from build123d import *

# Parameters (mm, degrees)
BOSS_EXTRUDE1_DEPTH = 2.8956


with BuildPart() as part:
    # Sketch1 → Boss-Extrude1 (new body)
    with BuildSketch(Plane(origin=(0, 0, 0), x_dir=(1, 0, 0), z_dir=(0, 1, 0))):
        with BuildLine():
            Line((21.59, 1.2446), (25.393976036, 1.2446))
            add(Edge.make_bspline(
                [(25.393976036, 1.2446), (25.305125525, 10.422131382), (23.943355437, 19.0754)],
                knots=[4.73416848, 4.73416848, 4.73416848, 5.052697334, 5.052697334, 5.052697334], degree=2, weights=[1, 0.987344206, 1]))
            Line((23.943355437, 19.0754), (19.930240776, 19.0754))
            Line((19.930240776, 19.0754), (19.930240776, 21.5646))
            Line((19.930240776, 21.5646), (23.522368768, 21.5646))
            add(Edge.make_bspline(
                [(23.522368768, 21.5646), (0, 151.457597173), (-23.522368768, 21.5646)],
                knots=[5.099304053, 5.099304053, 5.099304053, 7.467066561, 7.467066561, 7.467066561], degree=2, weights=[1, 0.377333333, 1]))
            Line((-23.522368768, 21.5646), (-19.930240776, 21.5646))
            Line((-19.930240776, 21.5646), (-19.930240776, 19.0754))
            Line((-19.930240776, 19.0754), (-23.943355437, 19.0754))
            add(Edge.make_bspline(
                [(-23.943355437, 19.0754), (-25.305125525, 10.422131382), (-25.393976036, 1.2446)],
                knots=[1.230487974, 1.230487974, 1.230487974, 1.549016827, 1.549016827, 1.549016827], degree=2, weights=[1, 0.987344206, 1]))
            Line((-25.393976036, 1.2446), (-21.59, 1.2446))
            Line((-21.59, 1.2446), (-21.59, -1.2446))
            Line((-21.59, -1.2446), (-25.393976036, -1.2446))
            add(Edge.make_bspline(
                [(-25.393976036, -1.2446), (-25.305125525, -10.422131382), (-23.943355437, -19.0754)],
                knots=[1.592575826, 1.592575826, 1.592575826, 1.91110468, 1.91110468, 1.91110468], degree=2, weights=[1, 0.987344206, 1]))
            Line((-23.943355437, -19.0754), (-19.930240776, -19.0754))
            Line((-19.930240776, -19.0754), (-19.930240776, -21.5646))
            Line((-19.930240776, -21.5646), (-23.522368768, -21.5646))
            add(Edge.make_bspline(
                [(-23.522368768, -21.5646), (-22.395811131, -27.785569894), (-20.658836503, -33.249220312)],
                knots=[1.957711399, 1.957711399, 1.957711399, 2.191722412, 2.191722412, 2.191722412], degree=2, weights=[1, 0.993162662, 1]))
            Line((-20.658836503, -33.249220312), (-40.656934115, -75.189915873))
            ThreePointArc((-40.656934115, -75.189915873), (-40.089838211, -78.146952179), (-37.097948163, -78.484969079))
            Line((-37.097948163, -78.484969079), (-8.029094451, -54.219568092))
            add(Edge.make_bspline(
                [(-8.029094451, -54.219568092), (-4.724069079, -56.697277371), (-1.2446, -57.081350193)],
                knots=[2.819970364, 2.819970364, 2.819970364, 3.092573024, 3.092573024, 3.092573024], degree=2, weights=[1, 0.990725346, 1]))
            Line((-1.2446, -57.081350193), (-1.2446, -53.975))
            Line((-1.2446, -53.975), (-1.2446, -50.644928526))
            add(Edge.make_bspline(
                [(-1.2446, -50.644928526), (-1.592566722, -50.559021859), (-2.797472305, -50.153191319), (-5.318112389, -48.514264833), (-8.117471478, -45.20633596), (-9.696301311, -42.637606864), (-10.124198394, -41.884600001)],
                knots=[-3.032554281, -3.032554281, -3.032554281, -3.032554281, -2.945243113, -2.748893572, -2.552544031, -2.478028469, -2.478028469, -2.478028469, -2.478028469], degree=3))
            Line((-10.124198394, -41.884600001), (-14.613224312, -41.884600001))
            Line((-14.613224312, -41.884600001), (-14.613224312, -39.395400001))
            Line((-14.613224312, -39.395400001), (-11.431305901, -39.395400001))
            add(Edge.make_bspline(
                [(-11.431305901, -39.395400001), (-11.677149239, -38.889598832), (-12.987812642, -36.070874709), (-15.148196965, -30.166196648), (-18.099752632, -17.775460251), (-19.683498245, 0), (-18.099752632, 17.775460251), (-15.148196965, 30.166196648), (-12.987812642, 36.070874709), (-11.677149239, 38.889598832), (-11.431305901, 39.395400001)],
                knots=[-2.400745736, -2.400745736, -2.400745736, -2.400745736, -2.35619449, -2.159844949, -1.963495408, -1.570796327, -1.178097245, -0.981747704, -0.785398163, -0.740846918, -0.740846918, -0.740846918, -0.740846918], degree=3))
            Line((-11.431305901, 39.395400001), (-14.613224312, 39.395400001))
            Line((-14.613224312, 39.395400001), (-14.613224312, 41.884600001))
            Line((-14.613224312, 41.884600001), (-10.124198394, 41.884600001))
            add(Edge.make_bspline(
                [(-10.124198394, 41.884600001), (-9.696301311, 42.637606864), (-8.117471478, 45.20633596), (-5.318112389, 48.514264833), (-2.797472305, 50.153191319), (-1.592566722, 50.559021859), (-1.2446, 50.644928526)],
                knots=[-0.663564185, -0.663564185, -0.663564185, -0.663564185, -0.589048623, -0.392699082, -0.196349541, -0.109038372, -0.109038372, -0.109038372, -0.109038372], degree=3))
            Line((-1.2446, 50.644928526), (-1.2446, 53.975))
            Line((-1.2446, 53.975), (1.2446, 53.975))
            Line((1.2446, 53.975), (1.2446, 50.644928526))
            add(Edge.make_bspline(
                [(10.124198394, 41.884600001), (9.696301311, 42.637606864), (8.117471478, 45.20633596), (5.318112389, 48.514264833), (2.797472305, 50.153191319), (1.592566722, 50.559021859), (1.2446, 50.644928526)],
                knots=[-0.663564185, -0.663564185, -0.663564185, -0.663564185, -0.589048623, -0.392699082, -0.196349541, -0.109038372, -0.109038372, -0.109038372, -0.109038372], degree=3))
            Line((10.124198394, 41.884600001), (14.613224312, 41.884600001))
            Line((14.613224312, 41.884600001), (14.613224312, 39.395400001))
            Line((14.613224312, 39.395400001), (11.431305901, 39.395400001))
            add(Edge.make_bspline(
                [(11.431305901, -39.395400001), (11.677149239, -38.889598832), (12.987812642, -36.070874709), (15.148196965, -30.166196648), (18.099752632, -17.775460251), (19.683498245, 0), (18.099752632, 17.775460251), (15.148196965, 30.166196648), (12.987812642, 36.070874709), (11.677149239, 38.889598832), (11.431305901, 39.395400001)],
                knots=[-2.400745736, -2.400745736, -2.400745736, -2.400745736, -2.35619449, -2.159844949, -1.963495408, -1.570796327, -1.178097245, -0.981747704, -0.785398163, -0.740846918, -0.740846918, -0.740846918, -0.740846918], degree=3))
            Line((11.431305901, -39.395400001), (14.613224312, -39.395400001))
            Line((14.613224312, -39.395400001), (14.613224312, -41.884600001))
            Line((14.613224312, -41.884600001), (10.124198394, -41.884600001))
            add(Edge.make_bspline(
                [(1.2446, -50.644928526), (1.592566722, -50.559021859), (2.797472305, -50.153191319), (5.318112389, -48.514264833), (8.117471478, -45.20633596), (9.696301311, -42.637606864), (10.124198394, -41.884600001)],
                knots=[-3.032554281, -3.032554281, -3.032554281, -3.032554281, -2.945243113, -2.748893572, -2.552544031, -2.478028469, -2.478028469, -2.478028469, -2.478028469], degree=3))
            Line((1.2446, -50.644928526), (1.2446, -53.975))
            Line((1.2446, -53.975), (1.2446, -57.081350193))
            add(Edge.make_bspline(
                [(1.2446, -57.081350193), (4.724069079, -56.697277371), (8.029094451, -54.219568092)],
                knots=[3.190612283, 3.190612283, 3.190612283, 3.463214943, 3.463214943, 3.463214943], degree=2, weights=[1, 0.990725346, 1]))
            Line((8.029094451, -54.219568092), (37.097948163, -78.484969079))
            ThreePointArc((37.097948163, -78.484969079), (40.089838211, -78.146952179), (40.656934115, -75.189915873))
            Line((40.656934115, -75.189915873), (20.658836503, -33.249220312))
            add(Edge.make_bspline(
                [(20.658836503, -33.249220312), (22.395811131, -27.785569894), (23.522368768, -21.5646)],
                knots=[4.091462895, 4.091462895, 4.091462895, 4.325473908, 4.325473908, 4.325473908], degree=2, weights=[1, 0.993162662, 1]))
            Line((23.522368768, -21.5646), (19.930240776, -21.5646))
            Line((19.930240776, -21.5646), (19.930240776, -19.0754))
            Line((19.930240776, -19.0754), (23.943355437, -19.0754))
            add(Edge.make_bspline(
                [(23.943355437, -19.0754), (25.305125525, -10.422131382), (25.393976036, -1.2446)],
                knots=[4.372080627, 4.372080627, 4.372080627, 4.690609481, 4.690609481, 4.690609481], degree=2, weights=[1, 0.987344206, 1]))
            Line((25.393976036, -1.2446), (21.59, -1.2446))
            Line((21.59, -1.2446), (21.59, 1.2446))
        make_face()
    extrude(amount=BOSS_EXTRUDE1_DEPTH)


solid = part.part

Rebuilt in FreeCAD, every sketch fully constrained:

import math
import FreeCAD as App
import Part
import Sketcher

V = App.Vector
Q = App.Units.Quantity

doc = App.newDocument("Part")
body = doc.addObject("PartDesign::Body", "Body")

# Sketch on XZ plane
sketch1 = body.newObject("Sketcher::SketchObject", "Sketch")
sketch1.AttachmentSupport = (doc.getObject("XZ_Plane"), [""])
sketch1.MapMode = "FlatFace"
sketch1.addGeometry([
    Part.LineSegment(V(21.59, -1.2446, 0), V(25.393976, -1.2446, 0)),  # 0
    Part.BSplineCurve([V(25.393976, -1.2446, 0), V(25.305126, -10.422131, 0), V(23.943355, -19.0754, 0)], [3, 3], [4.73416848, 5.052697334], False, 2, [1, 0.987344206, 1], False),  # 1
    Part.LineSegment(V(23.943355, -19.0754, 0), V(19.930241, -19.0754, 0)),  # 2
    Part.LineSegment(V(19.930241, -19.0754, 0), V(19.930241, -21.5646, 0)),  # 3
    Part.LineSegment(V(19.930241, -21.5646, 0), V(23.522369, -21.5646, 0)),  # 4
    Part.BSplineCurve([V(23.522369, -21.5646, 0), V(0, -151.457597, 0), V(-23.522369, -21.5646, 0)], [3, 3], [5.099304053, 7.467066561], False, 2, [1, 0.377333333, 1], False),  # 5
    Part.LineSegment(V(-23.522369, -21.5646, 0), V(-19.930241, -21.5646, 0)),  # 6
    Part.LineSegment(V(-19.930241, -21.5646, 0), V(-19.930241, -19.0754, 0)),  # 7
    Part.LineSegment(V(-19.930241, -19.0754, 0), V(-23.943355, -19.0754, 0)),  # 8
    Part.BSplineCurve([V(-23.943355, -19.0754, 0), V(-25.305126, -10.422131, 0), V(-25.393976, -1.2446, 0)], [3, 3], [1.230487974, 1.549016827], False, 2, [1, 0.987344206, 1], False),  # 9
    Part.LineSegment(V(-25.393976, -1.2446, 0), V(-21.59, -1.2446, 0)),  # 10
    Part.LineSegment(V(-21.59, -1.2446, 0), V(-21.59, 1.2446, 0)),  # 11
    Part.LineSegment(V(-21.59, 1.2446, 0), V(-25.393976, 1.2446, 0)),  # 12
    Part.BSplineCurve([V(-25.393976, 1.2446, 0), V(-25.305126, 10.422131, 0), V(-23.943355, 19.0754, 0)], [3, 3], [1.592575826, 1.91110468], False, 2, [1, 0.987344206, 1], False),  # 13
    Part.LineSegment(V(-23.943355, 19.0754, 0), V(-19.930241, 19.0754, 0)),  # 14
    Part.LineSegment(V(-19.930241, 19.0754, 0), V(-19.930241, 21.5646, 0)),  # 15
    Part.LineSegment(V(-19.930241, 21.5646, 0), V(-23.522369, 21.5646, 0)),  # 16
    Part.BSplineCurve([V(-23.522369, 21.5646, 0), V(-22.395811, 27.78557, 0), V(-20.658837, 33.24922, 0)], [3, 3], [1.957711399, 2.191722412], False, 2, [1, 0.993162662, 1], False),  # 17
    Part.LineSegment(V(-20.658837, 33.24922, 0), V(-40.656934, 75.189916, 0)),  # 18
    Part.ArcOfCircle(Part.Circle(V(-38.364228, 76.283121, 0), V(0, 0, 1), 2.54), math.radians(60.096863), math.radians(205.492668)),  # 19
    Part.LineSegment(V(-37.097948, 78.484969, 0), V(-8.029094, 54.219568, 0)),  # 20
    Part.BSplineCurve([V(-8.029094, 54.219568, 0), V(-4.724069, 56.697277, 0), V(-1.2446, 57.08135, 0)], [3, 3], [2.819970364, 3.092573024], False, 2, [1, 0.990725346, 1], False),  # 21
    Part.LineSegment(V(-1.2446, 57.08135, 0), V(-1.2446, 50.644929, 0)),  # 22
    Part.BSplineCurve([V(-1.2446, 50.644929, 0), V(-1.592567, 50.559022, 0), V(-2.797472, 50.153191, 0), V(-5.318112, 48.514265, 0), V(-8.117471, 45.206336, 0), V(-9.696301, 42.637607, 0), V(-10.124198, 41.8846, 0)], [4, 1, 1, 1, 4], [-3.032554281, -2.945243113, -2.748893572, -2.552544031, -2.478028469], False, 3, [1, 1, 1, 1, 1, 1, 1], False),  # 23
    Part.LineSegment(V(-10.124198, 41.8846, 0), V(-14.613224, 41.8846, 0)),  # 24
    Part.LineSegment(V(-14.613224, 41.8846, 0), V(-14.613224, 39.3954, 0)),  # 25
    Part.LineSegment(V(-14.613224, 39.3954, 0), V(-11.431306, 39.3954, 0)),  # 26
    Part.BSplineCurve([V(-11.431306, 39.3954, 0), V(-11.677149, 38.889599, 0), V(-12.987813, 36.070875, 0), V(-15.148197, 30.166197, 0), V(-18.099753, 17.77546, 0), V(-19.683498, 0, 0), V(-18.099753, -17.77546, 0), V(-15.148197, -30.166197, 0), V(-12.987813, -36.070875, 0), V(-11.677149, -38.889599, 0), V(-11.431306, -39.3954, 0)], [4, 1, 1, 1, 1, 1, 1, 1, 4], [-2.400745736, -2.35619449, -2.159844949, -1.963495408, -1.570796327, -1.178097245, -0.981747704, -0.785398163, -0.740846918], False, 3, [1, 1, 1, 1, 1, 1, 1, 1, 1, 1, 1], False),  # 27
    Part.LineSegment(V(-11.431306, -39.3954, 0), V(-14.613224, -39.3954, 0)),  # 28
    Part.LineSegment(V(-14.613224, -39.3954, 0), V(-14.613224, -41.8846, 0)),  # 29
    Part.LineSegment(V(-14.613224, -41.8846, 0), V(-10.124198, -41.8846, 0)),  # 30
    Part.BSplineCurve([V(-10.124198, -41.8846, 0), V(-9.696301, -42.637607, 0), V(-8.117471, -45.206336, 0), V(-5.318112, -48.514265, 0), V(-2.797472, -50.153191, 0), V(-1.592567, -50.559022, 0), V(-1.2446, -50.644929, 0)], [4, 1, 1, 1, 4], [-0.663564185, -0.589048623, -0.392699082, -0.196349541, -0.109038372], False, 3, [1, 1, 1, 1, 1, 1, 1], False),  # 31
    Part.LineSegment(V(-1.2446, -50.644929, 0), V(-1.2446, -53.975, 0)),  # 32
    Part.LineSegment(V(-1.2446, -53.975, 0), V(1.2446, -53.975, 0)),  # 33
    Part.LineSegment(V(1.2446, -53.975, 0), V(1.2446, -50.644929, 0)),  # 34
    Part.BSplineCurve([V(10.124198, -41.8846, 0), V(9.696301, -42.637607, 0), V(8.117471, -45.206336, 0), V(5.318112, -48.514265, 0), V(2.797472, -50.153191, 0), V(1.592567, -50.559022, 0), V(1.2446, -50.644929, 0)], [4, 1, 1, 1, 4], [-0.663564185, -0.589048623, -0.392699082, -0.196349541, -0.109038372], False, 3, [1, 1, 1, 1, 1, 1, 1], False),  # 35
    Part.LineSegment(V(10.124198, -41.8846, 0), V(14.613224, -41.8846, 0)),  # 36
    Part.LineSegment(V(14.613224, -41.8846, 0), V(14.613224, -39.3954, 0)),  # 37
    Part.LineSegment(V(14.613224, -39.3954, 0), V(11.431306, -39.3954, 0)),  # 38
    Part.BSplineCurve([V(11.431306, 39.3954, 0), V(11.677149, 38.889599, 0), V(12.987813, 36.070875, 0), V(15.148197, 30.166197, 0), V(18.099753, 17.77546, 0), V(19.683498, 0, 0), V(18.099753, -17.77546, 0), V(15.148197, -30.166197, 0), V(12.987813, -36.070875, 0), V(11.677149, -38.889599, 0), V(11.431306, -39.3954, 0)], [4, 1, 1, 1, 1, 1, 1, 1, 4], [-2.400745736, -2.35619449, -2.159844949, -1.963495408, -1.570796327, -1.178097245, -0.981747704, -0.785398163, -0.740846918], False, 3, [1, 1, 1, 1, 1, 1, 1, 1, 1, 1, 1], False),  # 39
    Part.LineSegment(V(11.431306, 39.3954, 0), V(14.613224, 39.3954, 0)),  # 40
    Part.LineSegment(V(14.613224, 39.3954, 0), V(14.613224, 41.8846, 0)),  # 41
    Part.LineSegment(V(14.613224, 41.8846, 0), V(10.124198, 41.8846, 0)),  # 42
    Part.BSplineCurve([V(1.2446, 50.644929, 0), V(1.592567, 50.559022, 0), V(2.797472, 50.153191, 0), V(5.318112, 48.514265, 0), V(8.117471, 45.206336, 0), V(9.696301, 42.637607, 0), V(10.124198, 41.8846, 0)], [4, 1, 1, 1, 4], [-3.032554281, -2.945243113, -2.748893572, -2.552544031, -2.478028469], False, 3, [1, 1, 1, 1, 1, 1, 1], False),  # 43
    Part.LineSegment(V(1.2446, 50.644929, 0), V(1.2446, 57.08135, 0)),  # 44
    Part.BSplineCurve([V(1.2446, 57.08135, 0), V(4.724069, 56.697277, 0), V(8.029094, 54.219568, 0)], [3, 3], [3.190612283, 3.463214943], False, 2, [1, 0.990725346, 1], False),  # 45
    Part.LineSegment(V(8.029094, 54.219568, 0), V(37.097948, 78.484969, 0)),  # 46
    Part.ArcOfCircle(Part.Circle(V(38.364228, 76.283121, 0), V(0, 0, 1), 2.54), math.radians(-25.492668), math.radians(119.903137)),  # 47
    Part.LineSegment(V(40.656934, 75.189916, 0), V(20.658837, 33.24922, 0)),  # 48
    Part.BSplineCurve([V(20.658837, 33.24922, 0), V(22.395811, 27.78557, 0), V(23.522369, 21.5646, 0)], [3, 3], [4.091462895, 4.325473908], False, 2, [1, 0.993162662, 1], False),  # 49
    Part.LineSegment(V(23.522369, 21.5646, 0), V(19.930241, 21.5646, 0)),  # 50
    Part.LineSegment(V(19.930241, 21.5646, 0), V(19.930241, 19.0754, 0)),  # 51
    Part.LineSegment(V(19.930241, 19.0754, 0), V(23.943355, 19.0754, 0)),  # 52
    Part.BSplineCurve([V(23.943355, 19.0754, 0), V(25.305126, 10.422131, 0), V(25.393976, 1.2446, 0)], [3, 3], [4.372080627, 4.690609481], False, 2, [1, 0.987344206, 1], False),  # 53
    Part.LineSegment(V(25.393976, 1.2446, 0), V(21.59, 1.2446, 0)),  # 54
    Part.LineSegment(V(21.59, 1.2446, 0), V(21.59, -1.2446, 0)),  # 55
], False)
sketch1.addConstraint([
    Sketcher.Constraint("Block", 1),
    Sketcher.Constraint("Block", 5),
    Sketcher.Constraint("Block", 9),
    Sketcher.Constraint("Block", 13),
    Sketcher.Constraint("Block", 17),
    Sketcher.Constraint("Block", 21),
    Sketcher.Constraint("Block", 23),
    Sketcher.Constraint("Block", 27),
    Sketcher.Constraint("Block", 31),
    Sketcher.Constraint("Block", 35),
    Sketcher.Constraint("Block", 39),
    Sketcher.Constraint("Block", 43),
    Sketcher.Constraint("Block", 45),
    Sketcher.Constraint("Block", 49),
    Sketcher.Constraint("Block", 53),
    Sketcher.Constraint("Coincident", 0, 2, 1, 1),
    Sketcher.Constraint("Coincident", 1, 2, 2, 1),
    Sketcher.Constraint("Coincident", 2, 2, 3, 1),
    Sketcher.Constraint("Coincident", 3, 2, 4, 1),
    Sketcher.Constraint("Coincident", 4, 2, 5, 1),
    Sketcher.Constraint("Coincident", 5, 2, 6, 1),
    Sketcher.Constraint("Coincident", 6, 2, 7, 1),
    Sketcher.Constraint("Coincident", 7, 2, 8, 1),
    Sketcher.Constraint("Coincident", 8, 2, 9, 1),
    Sketcher.Constraint("Coincident", 9, 2, 10, 1),
    Sketcher.Constraint("Coincident", 10, 2, 11, 1),
    Sketcher.Constraint("Coincident", 11, 2, 12, 1),
    Sketcher.Constraint("Coincident", 12, 2, 13, 1),
    Sketcher.Constraint("Coincident", 13, 2, 14, 1),
    Sketcher.Constraint("Coincident", 14, 2, 15, 1),
    Sketcher.Constraint("Coincident", 15, 2, 16, 1),
    Sketcher.Constraint("Coincident", 16, 2, 17, 1),
    Sketcher.Constraint("Coincident", 17, 2, 18, 1),
    Sketcher.Constraint("Tangent", 18, 2, 19, 2),
    Sketcher.Constraint("Coincident", 19, 1, 20, 1),
    Sketcher.Constraint("Coincident", 20, 2, 21, 1),
    Sketcher.Constraint("Coincident", 21, 2, 22, 1),
    Sketcher.Constraint("Coincident", 22, 2, 23, 1),
    Sketcher.Constraint("Coincident", 23, 2, 24, 1),
    Sketcher.Constraint("Coincident", 24, 2, 25, 1),
    Sketcher.Constraint("Coincident", 25, 2, 26, 1),
    Sketcher.Constraint("Coincident", 26, 2, 27, 1),
    Sketcher.Constraint("Coincident", 27, 2, 28, 1),
    Sketcher.Constraint("Coincident", 28, 2, 29, 1),
    Sketcher.Constraint("Coincident", 29, 2, 30, 1),
    Sketcher.Constraint("Coincident", 30, 2, 31, 1),
    Sketcher.Constraint("Coincident", 31, 2, 32, 1),
    Sketcher.Constraint("Coincident", 32, 2, 33, 1),
    Sketcher.Constraint("Coincident", 33, 2, 34, 1),
    Sketcher.Constraint("Coincident", 34, 2, 35, 2),
    Sketcher.Constraint("Coincident", 35, 1, 36, 1),
    Sketcher.Constraint("Coincident", 36, 2, 37, 1),
    Sketcher.Constraint("Coincident", 37, 2, 38, 1),
    Sketcher.Constraint("Coincident", 38, 2, 39, 2),
    Sketcher.Constraint("Coincident", 39, 1, 40, 1),
    Sketcher.Constraint("Coincident", 40, 2, 41, 1),
    Sketcher.Constraint("Coincident", 41, 2, 42, 1),
    Sketcher.Constraint("Coincident", 42, 2, 43, 2),
    Sketcher.Constraint("Coincident", 43, 1, 44, 1),
    Sketcher.Constraint("Coincident", 44, 2, 45, 1),
    Sketcher.Constraint("Coincident", 45, 2, 46, 1),
    Sketcher.Constraint("Coincident", 46, 2, 47, 2),
    Sketcher.Constraint("Tangent", 47, 1, 48, 1),
    Sketcher.Constraint("Coincident", 48, 2, 49, 1),
    Sketcher.Constraint("Coincident", 49, 2, 50, 1),
    Sketcher.Constraint("Coincident", 50, 2, 51, 1),
    Sketcher.Constraint("Coincident", 51, 2, 52, 1),
    Sketcher.Constraint("Coincident", 52, 2, 53, 1),
    Sketcher.Constraint("Coincident", 53, 2, 54, 1),
    Sketcher.Constraint("Coincident", 54, 2, 55, 1),
    Sketcher.Constraint("Coincident", 55, 2, 0, 1),
    Sketcher.Constraint("Horizontal", 0),
    Sketcher.Constraint("Horizontal", 2),
    Sketcher.Constraint("Vertical", 3),
    Sketcher.Constraint("Horizontal", 4),
    Sketcher.Constraint("Horizontal", 6),
    Sketcher.Constraint("Vertical", 7),
    Sketcher.Constraint("Horizontal", 8),
    Sketcher.Constraint("Horizontal", 10),
    Sketcher.Constraint("Vertical", 11),
    Sketcher.Constraint("Horizontal", 12),
    Sketcher.Constraint("Horizontal", 14),
    Sketcher.Constraint("Vertical", 15),
    Sketcher.Constraint("Horizontal", 16),
    Sketcher.Constraint("Horizontal", 24),
    Sketcher.Constraint("Vertical", 25),
    Sketcher.Constraint("Horizontal", 26),
    Sketcher.Constraint("Horizontal", 28),
    Sketcher.Constraint("Vertical", 29),
    Sketcher.Constraint("Horizontal", 30),
    Sketcher.Constraint("Vertical", 32),
    Sketcher.Constraint("Horizontal", 33),
    Sketcher.Constraint("Vertical", 34),
    Sketcher.Constraint("Horizontal", 36),
    Sketcher.Constraint("Vertical", 37),
    Sketcher.Constraint("Horizontal", 38),
    Sketcher.Constraint("Horizontal", 40),
    Sketcher.Constraint("Vertical", 41),
    Sketcher.Constraint("Horizontal", 42),
    Sketcher.Constraint("Horizontal", 50),
    Sketcher.Constraint("Vertical", 51),
    Sketcher.Constraint("Horizontal", 52),
    Sketcher.Constraint("Horizontal", 54),
    Sketcher.Constraint("Vertical", 55),
    Sketcher.Constraint("Equal", 19, 47),
    Sketcher.Constraint("Symmetric", 19, 3, 47, 3, -2),
    Sketcher.Constraint("Horizontal", 19, 1, 46, 2),
    Sketcher.Constraint("Vertical", 7, 2, 14, 2),
    Sketcher.Constraint("Vertical", 25, 2, 28, 2),
    Sketcher.Constraint("Vertical", 37, 2, 40, 2),
    Sketcher.Constraint("Vertical", 3, 2, 50, 2),
    Sketcher.Constraint("Equal", 4, 6),
    Sketcher.Constraint("Equal", 0, 10),
    Sketcher.Constraint("Equal", 30, 36),
    Sketcher.Constraint("Radius", 19, Q("0.1 in")),
    Sketcher.Constraint("DistanceX", 10, 2, -1, 1, Q("0.85 in")),
    Sketcher.Constraint("DistanceY", 32, 2, -1, 1, Q("2.125 in")),
    Sketcher.Constraint("DistanceX", 26, 1, 26, 2, 3.181918),
    Sketcher.Constraint("DistanceY", 20, 2, 19, 1, 24.265401),
    Sketcher.Constraint("DistanceX", 2, 2, 2, 1, 4.013115),
    Sketcher.Constraint("DistanceY", -1, 1, 19, 3, 76.283121),
    Sketcher.Constraint("DistanceX", 19, 1, -1, 1, 37.097948),
])
pad1 = body.newObject("PartDesign::Pad", "Pad")
pad1.Profile = sketch1
pad1.Length = Q("0.114 in")
pad1.Reversed = True

doc.recompute()
